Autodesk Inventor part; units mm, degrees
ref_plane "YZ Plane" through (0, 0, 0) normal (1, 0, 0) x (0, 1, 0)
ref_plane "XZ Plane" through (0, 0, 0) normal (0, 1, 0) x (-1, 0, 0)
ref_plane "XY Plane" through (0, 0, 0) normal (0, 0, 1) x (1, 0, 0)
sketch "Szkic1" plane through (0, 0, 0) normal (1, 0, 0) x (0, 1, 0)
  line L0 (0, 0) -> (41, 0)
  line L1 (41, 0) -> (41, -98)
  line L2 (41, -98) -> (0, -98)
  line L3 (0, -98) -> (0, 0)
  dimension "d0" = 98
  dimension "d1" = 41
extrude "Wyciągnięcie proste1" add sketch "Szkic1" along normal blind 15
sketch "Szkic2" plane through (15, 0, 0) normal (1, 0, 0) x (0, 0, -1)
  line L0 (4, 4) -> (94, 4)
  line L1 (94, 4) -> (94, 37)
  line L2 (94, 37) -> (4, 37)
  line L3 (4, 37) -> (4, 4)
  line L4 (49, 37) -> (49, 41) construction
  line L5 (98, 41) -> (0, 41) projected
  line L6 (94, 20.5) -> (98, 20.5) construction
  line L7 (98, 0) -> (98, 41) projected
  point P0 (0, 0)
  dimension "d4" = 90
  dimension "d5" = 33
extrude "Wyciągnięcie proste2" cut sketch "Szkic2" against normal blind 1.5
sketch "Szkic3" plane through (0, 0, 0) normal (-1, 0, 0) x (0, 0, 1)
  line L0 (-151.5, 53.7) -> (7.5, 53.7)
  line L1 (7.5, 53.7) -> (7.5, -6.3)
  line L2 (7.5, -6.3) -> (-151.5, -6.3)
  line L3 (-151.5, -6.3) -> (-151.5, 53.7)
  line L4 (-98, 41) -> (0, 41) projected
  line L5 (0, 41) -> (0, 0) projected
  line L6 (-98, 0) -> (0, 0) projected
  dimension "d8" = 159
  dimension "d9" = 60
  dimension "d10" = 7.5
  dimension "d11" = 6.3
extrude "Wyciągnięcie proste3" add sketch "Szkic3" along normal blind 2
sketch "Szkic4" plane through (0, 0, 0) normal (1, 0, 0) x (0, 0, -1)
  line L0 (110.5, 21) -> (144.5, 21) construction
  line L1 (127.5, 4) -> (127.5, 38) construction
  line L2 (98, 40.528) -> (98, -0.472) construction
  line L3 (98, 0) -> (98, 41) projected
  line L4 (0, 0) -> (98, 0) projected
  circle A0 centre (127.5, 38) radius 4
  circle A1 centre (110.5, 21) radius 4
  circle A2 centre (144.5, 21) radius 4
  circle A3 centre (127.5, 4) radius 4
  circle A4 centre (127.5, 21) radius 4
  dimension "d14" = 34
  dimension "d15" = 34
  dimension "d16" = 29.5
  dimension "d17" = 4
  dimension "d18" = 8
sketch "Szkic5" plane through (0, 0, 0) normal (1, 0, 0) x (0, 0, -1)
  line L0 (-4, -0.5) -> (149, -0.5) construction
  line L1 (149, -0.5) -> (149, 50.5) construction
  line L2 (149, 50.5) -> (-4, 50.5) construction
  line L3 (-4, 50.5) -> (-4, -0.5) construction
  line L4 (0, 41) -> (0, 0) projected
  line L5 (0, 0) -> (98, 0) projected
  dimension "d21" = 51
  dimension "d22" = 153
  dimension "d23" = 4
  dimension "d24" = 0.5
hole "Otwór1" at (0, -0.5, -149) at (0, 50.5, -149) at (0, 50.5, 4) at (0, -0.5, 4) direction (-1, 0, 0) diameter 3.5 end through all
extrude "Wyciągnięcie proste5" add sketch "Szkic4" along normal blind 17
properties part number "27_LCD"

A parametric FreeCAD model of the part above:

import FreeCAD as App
import Part
import Sketcher
Q = App.Units.Quantity

doc = App.newDocument("Part")
params = doc.addObject("Spreadsheet::Sheet", "Params")
for row, (alias, value) in enumerate([
    ("sketch1_width", "41 mm"),
    ("sketch1_height", "98 mm"),
    ("pad1_length", "15 mm"),
    ("sketch2_width", "33 mm"),
    ("sketch2_height", "90 mm"),
    ("pocket1_length", "1.5 mm"),
    ("sketch3_width", "60 mm"),
    ("sketch3_height", "159 mm"),
    ("pad2_length", "2 mm"),
    ("sketch4_diameter", "3.5 mm"),
    ("hole_diameter", "3.5 mm"),
    ("sketch5_diameter", "8 mm"),
    ("pad3_length", "17 mm"),
], start=1):
    params.set(f"A{row}", alias)
    params.set(f"B{row}", "=" + value)
    params.setAlias(f"B{row}", alias)

body = doc.addObject("PartDesign::Body", "Body")

# Sketch on YZ plane
sketch1 = doc.addObject("Sketcher::SketchObject", "Sketch")
body.addObject(sketch1)
sketch1.AttachmentSupport = (doc.YZ_Plane, [""])
sketch1.MapMode = "FlatFace"
sketch1.addGeometry(Part.LineSegment(App.Vector(41, 0, 0), App.Vector(0, 0, 0)), False)
sketch1.addGeometry(Part.LineSegment(App.Vector(0, 0, 0), App.Vector(0, -98, 0)), False)
sketch1.addGeometry(Part.LineSegment(App.Vector(0, -98, 0), App.Vector(41, -98, 0)), False)
sketch1.addGeometry(Part.LineSegment(App.Vector(41, -98, 0), App.Vector(41, 0, 0)), False)
sketch1.addConstraint(Sketcher.Constraint("Coincident", 0, 2, 1, 1))
sketch1.addConstraint(Sketcher.Constraint("Coincident", 1, 2, 2, 1))
sketch1.addConstraint(Sketcher.Constraint("Coincident", 2, 2, 3, 1))
sketch1.addConstraint(Sketcher.Constraint("Coincident", 3, 2, 0, 1))
sketch1.addConstraint(Sketcher.Constraint("Horizontal", 0))
sketch1.addConstraint(Sketcher.Constraint("Vertical", 1))
sketch1.addConstraint(Sketcher.Constraint("Horizontal", 2))
sketch1.addConstraint(Sketcher.Constraint("Vertical", 3))
sketch1.addConstraint(Sketcher.Constraint("Coincident", 0, 2, -1, 1))
sketch1.addConstraint(Sketcher.Constraint("DistanceX", 0, 2, 0, 1, Q("41 mm")))
sketch1.addConstraint(Sketcher.Constraint("DistanceY", 1, 2, 1, 1, Q("98 mm")))
sketch1.setExpression("Constraints[9]", "Params.sketch1_width")
sketch1.setExpression("Constraints[10]", "Params.sketch1_height")
pad1 = doc.addObject("PartDesign::Pad", "Pad")
body.addObject(pad1)
pad1.Profile = sketch1
pad1.setExpression("Length", "Params.pad1_length")

# Sketch on YZ plane
sketch2 = doc.addObject("Sketcher::SketchObject", "Sketch001")
body.addObject(sketch2)
sketch2.AttachmentSupport = (doc.YZ_Plane, [""])
sketch2.MapMode = "FlatFace"
sketch2.AttachmentOffset = App.Placement(App.Vector(0, 0, 15), App.Rotation())
sketch2.addGeometry(Part.LineSegment(App.Vector(37, -4, 0), App.Vector(4, -4, 0)), False)
sketch2.addGeometry(Part.LineSegment(App.Vector(4, -4, 0), App.Vector(4, -94, 0)), False)
sketch2.addGeometry(Part.LineSegment(App.Vector(4, -94, 0), App.Vector(37, -94, 0)), False)
sketch2.addGeometry(Part.LineSegment(App.Vector(37, -94, 0), App.Vector(37, -4, 0)), False)
sketch2.addConstraint(Sketcher.Constraint("Coincident", 0, 2, 1, 1))
sketch2.addConstraint(Sketcher.Constraint("Coincident", 1, 2, 2, 1))
sketch2.addConstraint(Sketcher.Constraint("Coincident", 2, 2, 3, 1))
sketch2.addConstraint(Sketcher.Constraint("Coincident", 3, 2, 0, 1))
sketch2.addConstraint(Sketcher.Constraint("Horizontal", 0))
sketch2.addConstraint(Sketcher.Constraint("Vertical", 1))
sketch2.addConstraint(Sketcher.Constraint("Horizontal", 2))
sketch2.addConstraint(Sketcher.Constraint("Vertical", 3))
sketch2.addConstraint(Sketcher.Constraint("DistanceX", 0, 2, 0, 1, Q("33 mm")))
sketch2.addConstraint(Sketcher.Constraint("DistanceY", 1, 2, 1, 1, Q("90 mm")))
sketch2.addConstraint(Sketcher.Constraint("DistanceX", -1, 1, 0, 2, Q("4 mm")))
sketch2.addConstraint(Sketcher.Constraint("DistanceY", 0, 2, -1, 1, Q("4 mm")))
sketch2.setExpression("Constraints[8]", "Params.sketch2_width")
sketch2.setExpression("Constraints[9]", "Params.sketch2_height")
pocket1 = doc.addObject("PartDesign::Pocket", "Pocket")
body.addObject(pocket1)
pocket1.Profile = sketch2
pocket1.setExpression("Length", "Params.pocket1_length")

# Sketch on YZ plane
sketch3 = doc.addObject("Sketcher::SketchObject", "Sketch002")
body.addObject(sketch3)
sketch3.AttachmentSupport = (doc.YZ_Plane, [""])
sketch3.MapMode = "FlatFace"
sketch3.addGeometry(Part.LineSegment(App.Vector(53.7, 7.5, 0), App.Vector(53.7, -151.5, 0)), False)
sketch3.addGeometry(Part.LineSegment(App.Vector(53.7, -151.5, 0), App.Vector(-6.3, -151.5, 0)), False)
sketch3.addGeometry(Part.LineSegment(App.Vector(-6.3, -151.5, 0), App.Vector(-6.3, 7.5, 0)), False)
sketch3.addGeometry(Part.LineSegment(App.Vector(-6.3, 7.5, 0), App.Vector(53.7, 7.5, 0)), False)
sketch3.addConstraint(Sketcher.Constraint("Coincident", 0, 2, 1, 1))
sketch3.addConstraint(Sketcher.Constraint("Coincident", 1, 2, 2, 1))
sketch3.addConstraint(Sketcher.Constraint("Coincident", 2, 2, 3, 1))
sketch3.addConstraint(Sketcher.Constraint("Coincident", 3, 2, 0, 1))
sketch3.addConstraint(Sketcher.Constraint("Vertical", 0))
sketch3.addConstraint(Sketcher.Constraint("Horizontal", 1))
sketch3.addConstraint(Sketcher.Constraint("Vertical", 2))
sketch3.addConstraint(Sketcher.Constraint("Horizontal", 3))
sketch3.addConstraint(Sketcher.Constraint("DistanceX", 1, 2, 1, 1, Q("60 mm")))
sketch3.addConstraint(Sketcher.Constraint("DistanceY", 0, 2, 0, 1, Q("159 mm")))
sketch3.addConstraint(Sketcher.Constraint("DistanceX", 1, 2, -1, 1, Q("6.3 mm")))
sketch3.addConstraint(Sketcher.Constraint("DistanceY", -1, 1, 2, 2, Q("7.5 mm")))
sketch3.setExpression("Constraints[8]", "Params.sketch3_width")
sketch3.setExpression("Constraints[9]", "Params.sketch3_height")
pad2 = doc.addObject("PartDesign::Pad", "Pad001")
body.addObject(pad2)
pad2.Profile = sketch3
pad2.setExpression("Length", "Params.pad2_length")
pad2.Reversed = True

# Sketch on YZ plane
sketch4 = doc.addObject("Sketcher::SketchObject", "Sketch003")
body.addObject(sketch4)
sketch4.AttachmentSupport = (doc.YZ_Plane, [""])
sketch4.MapMode = "FlatFace"
sketch4.addGeometry(Part.Circle(App.Vector(-0.5, -149, 0), App.Vector(0, 0, 1), 1.75), False)
sketch4.addGeometry(Part.Circle(App.Vector(50.5, -149, 0), App.Vector(0, 0, 1), 1.75), False)
sketch4.addGeometry(Part.Circle(App.Vector(50.5, 4, 0), App.Vector(0, 0, 1), 1.75), False)
sketch4.addGeometry(Part.Circle(App.Vector(-0.5, 4, 0), App.Vector(0, 0, 1), 1.75), False)
sketch4.addConstraint(Sketcher.Constraint("Equal", 0, 1))
sketch4.addConstraint(Sketcher.Constraint("Equal", 1, 2))
sketch4.addConstraint(Sketcher.Constraint("Equal", 2, 3))
sketch4.addConstraint(Sketcher.Constraint("Horizontal", 0, 3, 1, 3))
sketch4.addConstraint(Sketcher.Constraint("Horizontal", 2, 3, 3, 3))
sketch4.addConstraint(Sketcher.Constraint("Vertical", 1, 3, 2, 3))
sketch4.addConstraint(Sketcher.Constraint("Vertical", 0, 3, 3, 3))
sketch4.addConstraint(Sketcher.Constraint("Diameter", 0, Q("3.5 mm")))
sketch4.addConstraint(Sketcher.Constraint("DistanceY", 0, 3, -1, 1, Q("149 mm")))
sketch4.addConstraint(Sketcher.Constraint("DistanceY", -1, 1, 2, 3, Q("4 mm")))
sketch4.addConstraint(Sketcher.Constraint("DistanceX", 0, 3, 1, 3, Q("51 mm")))
sketch4.addConstraint(Sketcher.Constraint("DistanceX", 0, 3, -1, 1, Q("0.5 mm")))
sketch4.setExpression("Constraints[7]", "Params.sketch4_diameter")
doc.recompute()
hole = doc.addObject("PartDesign::Hole", "Hole")
body.addObject(hole)
hole.Profile = sketch4
hole.ThreadType = "None"
hole.setExpression("Diameter", "Params.hole_diameter")
hole.DepthType = "ThroughAll"

# Sketch on YZ plane
sketch5 = doc.addObject("Sketcher::SketchObject", "Sketch004")
body.addObject(sketch5)
sketch5.AttachmentSupport = (doc.YZ_Plane, [""])
sketch5.MapMode = "FlatFace"
sketch5.addGeometry(Part.Circle(App.Vector(38, -127.5, 0), App.Vector(0, 0, 1), 4), False)
sketch5.addGeometry(Part.Circle(App.Vector(21, -110.5, 0), App.Vector(0, 0, 1), 4), False)
sketch5.addGeometry(Part.Circle(App.Vector(21, -144.5, 0), App.Vector(0, 0, 1), 4), False)
sketch5.addGeometry(Part.Circle(App.Vector(4, -127.5, 0), App.Vector(0, 0, 1), 4), False)
sketch5.addGeometry(Part.Circle(App.Vector(21, -127.5, 0), App.Vector(0, 0, 1), 4), False)
sketch5.addConstraint(Sketcher.Constraint("Equal", 0, 1))
sketch5.addConstraint(Sketcher.Constraint("Equal", 1, 2))
sketch5.addConstraint(Sketcher.Constraint("Equal", 2, 3))
sketch5.addConstraint(Sketcher.Constraint("Equal", 3, 4))
sketch5.addConstraint(Sketcher.Constraint("Horizontal", 0, 3, 3, 3))
sketch5.addConstraint(Sketcher.Constraint("Horizontal", 3, 3, 4, 3))
sketch5.addConstraint(Sketcher.Constraint("Vertical", 1, 3, 2, 3))
sketch5.addConstraint(Sketcher.Constraint("Vertical", 2, 3, 4, 3))
sketch5.addConstraint(Sketcher.Constraint("Diameter", 0, Q("8 mm")))
sketch5.addConstraint(Sketcher.Constraint("DistanceX", -1, 1, 3, 3, Q("4 mm")))
sketch5.addConstraint(Sketcher.Constraint("DistanceY", 2, 3, 1, 3, Q("34 mm")))
sketch5.addConstraint(Sketcher.Constraint("DistanceX", 3, 3, 0, 3, Q("34 mm")))
sketch5.addConstraint(Sketcher.Constraint("DistanceX", -1, 1, 1, 3, Q("21 mm")))
sketch5.addConstraint(Sketcher.Constraint("DistanceY", 0, 3, 1, 3, Q("17 mm")))
sketch5.addConstraint(Sketcher.Constraint("DistanceY", 0, 3, -1, 1, Q("127.5 mm")))
sketch5.setExpression("Constraints[8]", "Params.sketch5_diameter")
pad3 = doc.addObject("PartDesign::Pad", "Pad002")
body.addObject(pad3)
pad3.Profile = sketch5
pad3.setExpression("Length", "Params.pad3_length")

doc.recompute()
